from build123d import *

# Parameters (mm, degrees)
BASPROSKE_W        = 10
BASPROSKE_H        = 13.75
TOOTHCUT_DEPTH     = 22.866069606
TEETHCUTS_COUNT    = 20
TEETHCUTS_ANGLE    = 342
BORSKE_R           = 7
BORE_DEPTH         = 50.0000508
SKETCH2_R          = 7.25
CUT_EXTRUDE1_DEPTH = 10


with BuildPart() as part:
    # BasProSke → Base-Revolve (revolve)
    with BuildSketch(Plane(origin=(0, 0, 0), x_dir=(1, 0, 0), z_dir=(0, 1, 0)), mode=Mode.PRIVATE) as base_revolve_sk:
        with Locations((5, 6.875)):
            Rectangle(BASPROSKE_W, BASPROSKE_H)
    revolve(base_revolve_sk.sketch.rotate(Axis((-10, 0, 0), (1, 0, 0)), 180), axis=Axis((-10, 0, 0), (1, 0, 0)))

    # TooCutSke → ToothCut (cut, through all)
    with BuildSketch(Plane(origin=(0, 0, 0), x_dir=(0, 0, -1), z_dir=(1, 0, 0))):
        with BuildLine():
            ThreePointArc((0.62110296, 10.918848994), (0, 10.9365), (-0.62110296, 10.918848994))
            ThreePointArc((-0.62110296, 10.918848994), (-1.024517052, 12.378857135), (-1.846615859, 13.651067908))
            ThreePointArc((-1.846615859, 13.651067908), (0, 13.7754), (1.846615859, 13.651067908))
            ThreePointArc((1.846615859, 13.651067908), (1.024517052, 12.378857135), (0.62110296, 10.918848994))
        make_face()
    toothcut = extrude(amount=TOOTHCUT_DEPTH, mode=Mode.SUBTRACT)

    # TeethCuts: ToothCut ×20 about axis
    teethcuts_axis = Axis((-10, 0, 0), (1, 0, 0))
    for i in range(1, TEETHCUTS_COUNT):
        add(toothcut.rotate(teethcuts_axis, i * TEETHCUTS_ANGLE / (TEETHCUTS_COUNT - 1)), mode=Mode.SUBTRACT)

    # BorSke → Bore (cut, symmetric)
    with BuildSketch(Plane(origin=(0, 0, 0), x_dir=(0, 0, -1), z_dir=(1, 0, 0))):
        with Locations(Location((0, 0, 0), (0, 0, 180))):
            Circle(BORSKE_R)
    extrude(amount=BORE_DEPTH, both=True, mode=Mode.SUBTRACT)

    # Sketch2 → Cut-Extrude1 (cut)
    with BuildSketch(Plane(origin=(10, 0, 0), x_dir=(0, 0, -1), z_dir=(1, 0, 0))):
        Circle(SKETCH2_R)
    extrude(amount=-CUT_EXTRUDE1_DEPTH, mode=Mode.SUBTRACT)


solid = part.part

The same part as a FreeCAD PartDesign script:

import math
import FreeCAD as App
import Part
import Sketcher
from FreeCAD import Vector

doc = App.newDocument("Part")
params = doc.addObject("Spreadsheet::Sheet", "Params")
for row, (alias, value) in enumerate([
    ("sketch1_width", "10 mm"),
    ("sketch1_height", "13.75 mm"),
    ("revolution_angle", "360 deg"),
    ("sketch2_radius", "5 mm"),
    ("sketch3_diameter", "14 mm"),
    ("pocket2_length", "100.000102 mm"),
    ("sketch4_diameter", "14.5 mm"),
    ("pocket3_length", "10 mm"),
], start=1):
    params.set(f"A{row}", alias)
    params.set(f"B{row}", "=" + value)
    params.setAlias(f"B{row}", alias)

body = doc.addObject("PartDesign::Body", "Body")

# Sketch on XZ plane
sketch1 = body.newObject("Sketcher::SketchObject", "Sketch")
sketch1.AttachmentSupport = (doc.getObject("XZ_Plane"), [""])
sketch1.MapMode = "FlatFace"
sketch1.addGeometry([
    Part.LineSegment(Vector(0, -13.75, 0), Vector(0, 0, 0)),
    Part.LineSegment(Vector(0, 0, 0), Vector(10, 0, 0)),
    Part.LineSegment(Vector(10, 0, 0), Vector(10, -13.75, 0)),
    Part.LineSegment(Vector(10, -13.75, 0), Vector(0, -13.75, 0)),
], False)
sketch1.addConstraint([
    Sketcher.Constraint("Coincident", 0, 2, 1, 1),
    Sketcher.Constraint("Coincident", 1, 2, 2, 1),
    Sketcher.Constraint("Coincident", 2, 2, 3, 1),
    Sketcher.Constraint("Coincident", 3, 2, 0, 1),
    Sketcher.Constraint("Vertical", 0),
    Sketcher.Constraint("Horizontal", 1),
    Sketcher.Constraint("Vertical", 2),
    Sketcher.Constraint("Horizontal", 3),
    Sketcher.Constraint("Coincident", 0, 2, -1, 1),
    Sketcher.Constraint("DistanceX", 1, 1, 1, 2, 10.0),
    Sketcher.Constraint("DistanceY", 0, 1, 0, 2, 13.75),
])
sketch1.setExpression("Constraints[9]", "Params.sketch1_width")
sketch1.setExpression("Constraints[10]", "Params.sketch1_height")
revolution = body.newObject("PartDesign::Revolution", "Revolution")
revolution.Profile = sketch1
revolution.ReferenceAxis = (sketch1, ["H_Axis"])
revolution.setExpression("Angle", "Params.revolution_angle")

# Sketch on YZ plane
sketch2 = body.newObject("Sketcher::SketchObject", "Sketch001")
sketch2.AttachmentSupport = (doc.getObject("YZ_Plane"), [""])
sketch2.MapMode = "FlatFace"
sketch2.addGeometry([
    Part.ArcOfCircle(Part.Circle(Vector(0, 0, 0), Vector(0, 0, 1), 10.9365), math.radians(-3.255679), math.radians(3.255679)),
    Part.ArcOfCircle(Part.Circle(Vector(10.33257, -5.586612, 0), Vector(0, 0, 1), 5), math.radians(48.417354), math.radians(83.266241)),
    Part.ArcOfCircle(Part.Circle(Vector(0, 0, 0), Vector(0, 0, 1), 13.7754), math.radians(-7.703788), math.radians(7.703788)),
    Part.ArcOfCircle(Part.Circle(Vector(10.33257, 5.586612, 0), Vector(0, 0, 1), 5), math.radians(-83.266241), math.radians(-48.417354)),
], False)
sketch2.addConstraint([
    Sketcher.Constraint("Coincident", 0, 1, 1, 2),
    Sketcher.Constraint("Coincident", 1, 1, 2, 1),
    Sketcher.Constraint("Coincident", 2, 2, 3, 2),
    Sketcher.Constraint("Coincident", 3, 1, 0, 2),
    Sketcher.Constraint("Coincident", 0, 3, -1, 1),
    Sketcher.Constraint("Coincident", 2, 3, -1, 1),
    Sketcher.Constraint("Equal", 1, 3),
    Sketcher.Constraint("Symmetric", 1, 3, 3, 3, -1),
    Sketcher.Constraint("Radius", 1, 5.0),
    Sketcher.Constraint("Radius", 0, 10.9365),
    Sketcher.Constraint("Radius", 2, 13.7754),
    Sketcher.Constraint("DistanceX", 1, 3, 1, 1, 3.318498),
    Sketcher.Constraint("DistanceX", -1, 1, 1, 3, 10.33257),
])
sketch2.setExpression("Constraints[8]", "Params.sketch2_radius")
pocket1 = body.newObject("PartDesign::Pocket", "Pocket")
pocket1.Profile = sketch2
pocket1.Type = "ThroughAll"
pocket1.Reversed = True
doc.recompute()

polarpattern = body.newObject("PartDesign::PolarPattern", "PolarPattern")
polarpattern.Originals = [pocket1]
polarpattern.Axis = (doc.getObject("X_Axis"), [""])
polarpattern.Angle = 360
polarpattern.Occurrences = 20
body.Tip = polarpattern

# Sketch on YZ plane
sketch3 = body.newObject("Sketcher::SketchObject", "Sketch002")
sketch3.AttachmentSupport = (doc.getObject("YZ_Plane"), [""])
sketch3.MapMode = "FlatFace"
sketch3.addGeometry(Part.Circle(Vector(0, 0, 0), Vector(0, 0, 1), 7), False)
sketch3.addConstraint([
    Sketcher.Constraint("Coincident", 0, 3, -1, 1),
    Sketcher.Constraint("Diameter", 0, 14.0),
])
sketch3.setExpression("Constraints[1]", "Params.sketch3_diameter")
pocket2 = body.newObject("PartDesign::Pocket", "Pocket001")
pocket2.Profile = sketch3
pocket2.setExpression("Length", "Params.pocket2_length")
pocket2.Midplane = True

# Sketch on YZ plane
sketch4 = body.newObject("Sketcher::SketchObject", "Sketch003")
sketch4.AttachmentSupport = (doc.getObject("YZ_Plane"), [""])
sketch4.MapMode = "FlatFace"
sketch4.AttachmentOffset = App.Placement(Vector(0, 0, 10), App.Rotation())
sketch4.addGeometry(Part.Circle(Vector(0, 0, 0), Vector(0, 0, 1), 7.25), False)
sketch4.addConstraint([
    Sketcher.Constraint("Coincident", 0, 3, -1, 1),
    Sketcher.Constraint("Diameter", 0, 14.5),
])
sketch4.setExpression("Constraints[1]", "Params.sketch4_diameter")
pocket3 = body.newObject("PartDesign::Pocket", "Pocket002")
pocket3.Profile = sketch4
pocket3.setExpression("Length", "Params.pocket3_length")

doc.recompute()
